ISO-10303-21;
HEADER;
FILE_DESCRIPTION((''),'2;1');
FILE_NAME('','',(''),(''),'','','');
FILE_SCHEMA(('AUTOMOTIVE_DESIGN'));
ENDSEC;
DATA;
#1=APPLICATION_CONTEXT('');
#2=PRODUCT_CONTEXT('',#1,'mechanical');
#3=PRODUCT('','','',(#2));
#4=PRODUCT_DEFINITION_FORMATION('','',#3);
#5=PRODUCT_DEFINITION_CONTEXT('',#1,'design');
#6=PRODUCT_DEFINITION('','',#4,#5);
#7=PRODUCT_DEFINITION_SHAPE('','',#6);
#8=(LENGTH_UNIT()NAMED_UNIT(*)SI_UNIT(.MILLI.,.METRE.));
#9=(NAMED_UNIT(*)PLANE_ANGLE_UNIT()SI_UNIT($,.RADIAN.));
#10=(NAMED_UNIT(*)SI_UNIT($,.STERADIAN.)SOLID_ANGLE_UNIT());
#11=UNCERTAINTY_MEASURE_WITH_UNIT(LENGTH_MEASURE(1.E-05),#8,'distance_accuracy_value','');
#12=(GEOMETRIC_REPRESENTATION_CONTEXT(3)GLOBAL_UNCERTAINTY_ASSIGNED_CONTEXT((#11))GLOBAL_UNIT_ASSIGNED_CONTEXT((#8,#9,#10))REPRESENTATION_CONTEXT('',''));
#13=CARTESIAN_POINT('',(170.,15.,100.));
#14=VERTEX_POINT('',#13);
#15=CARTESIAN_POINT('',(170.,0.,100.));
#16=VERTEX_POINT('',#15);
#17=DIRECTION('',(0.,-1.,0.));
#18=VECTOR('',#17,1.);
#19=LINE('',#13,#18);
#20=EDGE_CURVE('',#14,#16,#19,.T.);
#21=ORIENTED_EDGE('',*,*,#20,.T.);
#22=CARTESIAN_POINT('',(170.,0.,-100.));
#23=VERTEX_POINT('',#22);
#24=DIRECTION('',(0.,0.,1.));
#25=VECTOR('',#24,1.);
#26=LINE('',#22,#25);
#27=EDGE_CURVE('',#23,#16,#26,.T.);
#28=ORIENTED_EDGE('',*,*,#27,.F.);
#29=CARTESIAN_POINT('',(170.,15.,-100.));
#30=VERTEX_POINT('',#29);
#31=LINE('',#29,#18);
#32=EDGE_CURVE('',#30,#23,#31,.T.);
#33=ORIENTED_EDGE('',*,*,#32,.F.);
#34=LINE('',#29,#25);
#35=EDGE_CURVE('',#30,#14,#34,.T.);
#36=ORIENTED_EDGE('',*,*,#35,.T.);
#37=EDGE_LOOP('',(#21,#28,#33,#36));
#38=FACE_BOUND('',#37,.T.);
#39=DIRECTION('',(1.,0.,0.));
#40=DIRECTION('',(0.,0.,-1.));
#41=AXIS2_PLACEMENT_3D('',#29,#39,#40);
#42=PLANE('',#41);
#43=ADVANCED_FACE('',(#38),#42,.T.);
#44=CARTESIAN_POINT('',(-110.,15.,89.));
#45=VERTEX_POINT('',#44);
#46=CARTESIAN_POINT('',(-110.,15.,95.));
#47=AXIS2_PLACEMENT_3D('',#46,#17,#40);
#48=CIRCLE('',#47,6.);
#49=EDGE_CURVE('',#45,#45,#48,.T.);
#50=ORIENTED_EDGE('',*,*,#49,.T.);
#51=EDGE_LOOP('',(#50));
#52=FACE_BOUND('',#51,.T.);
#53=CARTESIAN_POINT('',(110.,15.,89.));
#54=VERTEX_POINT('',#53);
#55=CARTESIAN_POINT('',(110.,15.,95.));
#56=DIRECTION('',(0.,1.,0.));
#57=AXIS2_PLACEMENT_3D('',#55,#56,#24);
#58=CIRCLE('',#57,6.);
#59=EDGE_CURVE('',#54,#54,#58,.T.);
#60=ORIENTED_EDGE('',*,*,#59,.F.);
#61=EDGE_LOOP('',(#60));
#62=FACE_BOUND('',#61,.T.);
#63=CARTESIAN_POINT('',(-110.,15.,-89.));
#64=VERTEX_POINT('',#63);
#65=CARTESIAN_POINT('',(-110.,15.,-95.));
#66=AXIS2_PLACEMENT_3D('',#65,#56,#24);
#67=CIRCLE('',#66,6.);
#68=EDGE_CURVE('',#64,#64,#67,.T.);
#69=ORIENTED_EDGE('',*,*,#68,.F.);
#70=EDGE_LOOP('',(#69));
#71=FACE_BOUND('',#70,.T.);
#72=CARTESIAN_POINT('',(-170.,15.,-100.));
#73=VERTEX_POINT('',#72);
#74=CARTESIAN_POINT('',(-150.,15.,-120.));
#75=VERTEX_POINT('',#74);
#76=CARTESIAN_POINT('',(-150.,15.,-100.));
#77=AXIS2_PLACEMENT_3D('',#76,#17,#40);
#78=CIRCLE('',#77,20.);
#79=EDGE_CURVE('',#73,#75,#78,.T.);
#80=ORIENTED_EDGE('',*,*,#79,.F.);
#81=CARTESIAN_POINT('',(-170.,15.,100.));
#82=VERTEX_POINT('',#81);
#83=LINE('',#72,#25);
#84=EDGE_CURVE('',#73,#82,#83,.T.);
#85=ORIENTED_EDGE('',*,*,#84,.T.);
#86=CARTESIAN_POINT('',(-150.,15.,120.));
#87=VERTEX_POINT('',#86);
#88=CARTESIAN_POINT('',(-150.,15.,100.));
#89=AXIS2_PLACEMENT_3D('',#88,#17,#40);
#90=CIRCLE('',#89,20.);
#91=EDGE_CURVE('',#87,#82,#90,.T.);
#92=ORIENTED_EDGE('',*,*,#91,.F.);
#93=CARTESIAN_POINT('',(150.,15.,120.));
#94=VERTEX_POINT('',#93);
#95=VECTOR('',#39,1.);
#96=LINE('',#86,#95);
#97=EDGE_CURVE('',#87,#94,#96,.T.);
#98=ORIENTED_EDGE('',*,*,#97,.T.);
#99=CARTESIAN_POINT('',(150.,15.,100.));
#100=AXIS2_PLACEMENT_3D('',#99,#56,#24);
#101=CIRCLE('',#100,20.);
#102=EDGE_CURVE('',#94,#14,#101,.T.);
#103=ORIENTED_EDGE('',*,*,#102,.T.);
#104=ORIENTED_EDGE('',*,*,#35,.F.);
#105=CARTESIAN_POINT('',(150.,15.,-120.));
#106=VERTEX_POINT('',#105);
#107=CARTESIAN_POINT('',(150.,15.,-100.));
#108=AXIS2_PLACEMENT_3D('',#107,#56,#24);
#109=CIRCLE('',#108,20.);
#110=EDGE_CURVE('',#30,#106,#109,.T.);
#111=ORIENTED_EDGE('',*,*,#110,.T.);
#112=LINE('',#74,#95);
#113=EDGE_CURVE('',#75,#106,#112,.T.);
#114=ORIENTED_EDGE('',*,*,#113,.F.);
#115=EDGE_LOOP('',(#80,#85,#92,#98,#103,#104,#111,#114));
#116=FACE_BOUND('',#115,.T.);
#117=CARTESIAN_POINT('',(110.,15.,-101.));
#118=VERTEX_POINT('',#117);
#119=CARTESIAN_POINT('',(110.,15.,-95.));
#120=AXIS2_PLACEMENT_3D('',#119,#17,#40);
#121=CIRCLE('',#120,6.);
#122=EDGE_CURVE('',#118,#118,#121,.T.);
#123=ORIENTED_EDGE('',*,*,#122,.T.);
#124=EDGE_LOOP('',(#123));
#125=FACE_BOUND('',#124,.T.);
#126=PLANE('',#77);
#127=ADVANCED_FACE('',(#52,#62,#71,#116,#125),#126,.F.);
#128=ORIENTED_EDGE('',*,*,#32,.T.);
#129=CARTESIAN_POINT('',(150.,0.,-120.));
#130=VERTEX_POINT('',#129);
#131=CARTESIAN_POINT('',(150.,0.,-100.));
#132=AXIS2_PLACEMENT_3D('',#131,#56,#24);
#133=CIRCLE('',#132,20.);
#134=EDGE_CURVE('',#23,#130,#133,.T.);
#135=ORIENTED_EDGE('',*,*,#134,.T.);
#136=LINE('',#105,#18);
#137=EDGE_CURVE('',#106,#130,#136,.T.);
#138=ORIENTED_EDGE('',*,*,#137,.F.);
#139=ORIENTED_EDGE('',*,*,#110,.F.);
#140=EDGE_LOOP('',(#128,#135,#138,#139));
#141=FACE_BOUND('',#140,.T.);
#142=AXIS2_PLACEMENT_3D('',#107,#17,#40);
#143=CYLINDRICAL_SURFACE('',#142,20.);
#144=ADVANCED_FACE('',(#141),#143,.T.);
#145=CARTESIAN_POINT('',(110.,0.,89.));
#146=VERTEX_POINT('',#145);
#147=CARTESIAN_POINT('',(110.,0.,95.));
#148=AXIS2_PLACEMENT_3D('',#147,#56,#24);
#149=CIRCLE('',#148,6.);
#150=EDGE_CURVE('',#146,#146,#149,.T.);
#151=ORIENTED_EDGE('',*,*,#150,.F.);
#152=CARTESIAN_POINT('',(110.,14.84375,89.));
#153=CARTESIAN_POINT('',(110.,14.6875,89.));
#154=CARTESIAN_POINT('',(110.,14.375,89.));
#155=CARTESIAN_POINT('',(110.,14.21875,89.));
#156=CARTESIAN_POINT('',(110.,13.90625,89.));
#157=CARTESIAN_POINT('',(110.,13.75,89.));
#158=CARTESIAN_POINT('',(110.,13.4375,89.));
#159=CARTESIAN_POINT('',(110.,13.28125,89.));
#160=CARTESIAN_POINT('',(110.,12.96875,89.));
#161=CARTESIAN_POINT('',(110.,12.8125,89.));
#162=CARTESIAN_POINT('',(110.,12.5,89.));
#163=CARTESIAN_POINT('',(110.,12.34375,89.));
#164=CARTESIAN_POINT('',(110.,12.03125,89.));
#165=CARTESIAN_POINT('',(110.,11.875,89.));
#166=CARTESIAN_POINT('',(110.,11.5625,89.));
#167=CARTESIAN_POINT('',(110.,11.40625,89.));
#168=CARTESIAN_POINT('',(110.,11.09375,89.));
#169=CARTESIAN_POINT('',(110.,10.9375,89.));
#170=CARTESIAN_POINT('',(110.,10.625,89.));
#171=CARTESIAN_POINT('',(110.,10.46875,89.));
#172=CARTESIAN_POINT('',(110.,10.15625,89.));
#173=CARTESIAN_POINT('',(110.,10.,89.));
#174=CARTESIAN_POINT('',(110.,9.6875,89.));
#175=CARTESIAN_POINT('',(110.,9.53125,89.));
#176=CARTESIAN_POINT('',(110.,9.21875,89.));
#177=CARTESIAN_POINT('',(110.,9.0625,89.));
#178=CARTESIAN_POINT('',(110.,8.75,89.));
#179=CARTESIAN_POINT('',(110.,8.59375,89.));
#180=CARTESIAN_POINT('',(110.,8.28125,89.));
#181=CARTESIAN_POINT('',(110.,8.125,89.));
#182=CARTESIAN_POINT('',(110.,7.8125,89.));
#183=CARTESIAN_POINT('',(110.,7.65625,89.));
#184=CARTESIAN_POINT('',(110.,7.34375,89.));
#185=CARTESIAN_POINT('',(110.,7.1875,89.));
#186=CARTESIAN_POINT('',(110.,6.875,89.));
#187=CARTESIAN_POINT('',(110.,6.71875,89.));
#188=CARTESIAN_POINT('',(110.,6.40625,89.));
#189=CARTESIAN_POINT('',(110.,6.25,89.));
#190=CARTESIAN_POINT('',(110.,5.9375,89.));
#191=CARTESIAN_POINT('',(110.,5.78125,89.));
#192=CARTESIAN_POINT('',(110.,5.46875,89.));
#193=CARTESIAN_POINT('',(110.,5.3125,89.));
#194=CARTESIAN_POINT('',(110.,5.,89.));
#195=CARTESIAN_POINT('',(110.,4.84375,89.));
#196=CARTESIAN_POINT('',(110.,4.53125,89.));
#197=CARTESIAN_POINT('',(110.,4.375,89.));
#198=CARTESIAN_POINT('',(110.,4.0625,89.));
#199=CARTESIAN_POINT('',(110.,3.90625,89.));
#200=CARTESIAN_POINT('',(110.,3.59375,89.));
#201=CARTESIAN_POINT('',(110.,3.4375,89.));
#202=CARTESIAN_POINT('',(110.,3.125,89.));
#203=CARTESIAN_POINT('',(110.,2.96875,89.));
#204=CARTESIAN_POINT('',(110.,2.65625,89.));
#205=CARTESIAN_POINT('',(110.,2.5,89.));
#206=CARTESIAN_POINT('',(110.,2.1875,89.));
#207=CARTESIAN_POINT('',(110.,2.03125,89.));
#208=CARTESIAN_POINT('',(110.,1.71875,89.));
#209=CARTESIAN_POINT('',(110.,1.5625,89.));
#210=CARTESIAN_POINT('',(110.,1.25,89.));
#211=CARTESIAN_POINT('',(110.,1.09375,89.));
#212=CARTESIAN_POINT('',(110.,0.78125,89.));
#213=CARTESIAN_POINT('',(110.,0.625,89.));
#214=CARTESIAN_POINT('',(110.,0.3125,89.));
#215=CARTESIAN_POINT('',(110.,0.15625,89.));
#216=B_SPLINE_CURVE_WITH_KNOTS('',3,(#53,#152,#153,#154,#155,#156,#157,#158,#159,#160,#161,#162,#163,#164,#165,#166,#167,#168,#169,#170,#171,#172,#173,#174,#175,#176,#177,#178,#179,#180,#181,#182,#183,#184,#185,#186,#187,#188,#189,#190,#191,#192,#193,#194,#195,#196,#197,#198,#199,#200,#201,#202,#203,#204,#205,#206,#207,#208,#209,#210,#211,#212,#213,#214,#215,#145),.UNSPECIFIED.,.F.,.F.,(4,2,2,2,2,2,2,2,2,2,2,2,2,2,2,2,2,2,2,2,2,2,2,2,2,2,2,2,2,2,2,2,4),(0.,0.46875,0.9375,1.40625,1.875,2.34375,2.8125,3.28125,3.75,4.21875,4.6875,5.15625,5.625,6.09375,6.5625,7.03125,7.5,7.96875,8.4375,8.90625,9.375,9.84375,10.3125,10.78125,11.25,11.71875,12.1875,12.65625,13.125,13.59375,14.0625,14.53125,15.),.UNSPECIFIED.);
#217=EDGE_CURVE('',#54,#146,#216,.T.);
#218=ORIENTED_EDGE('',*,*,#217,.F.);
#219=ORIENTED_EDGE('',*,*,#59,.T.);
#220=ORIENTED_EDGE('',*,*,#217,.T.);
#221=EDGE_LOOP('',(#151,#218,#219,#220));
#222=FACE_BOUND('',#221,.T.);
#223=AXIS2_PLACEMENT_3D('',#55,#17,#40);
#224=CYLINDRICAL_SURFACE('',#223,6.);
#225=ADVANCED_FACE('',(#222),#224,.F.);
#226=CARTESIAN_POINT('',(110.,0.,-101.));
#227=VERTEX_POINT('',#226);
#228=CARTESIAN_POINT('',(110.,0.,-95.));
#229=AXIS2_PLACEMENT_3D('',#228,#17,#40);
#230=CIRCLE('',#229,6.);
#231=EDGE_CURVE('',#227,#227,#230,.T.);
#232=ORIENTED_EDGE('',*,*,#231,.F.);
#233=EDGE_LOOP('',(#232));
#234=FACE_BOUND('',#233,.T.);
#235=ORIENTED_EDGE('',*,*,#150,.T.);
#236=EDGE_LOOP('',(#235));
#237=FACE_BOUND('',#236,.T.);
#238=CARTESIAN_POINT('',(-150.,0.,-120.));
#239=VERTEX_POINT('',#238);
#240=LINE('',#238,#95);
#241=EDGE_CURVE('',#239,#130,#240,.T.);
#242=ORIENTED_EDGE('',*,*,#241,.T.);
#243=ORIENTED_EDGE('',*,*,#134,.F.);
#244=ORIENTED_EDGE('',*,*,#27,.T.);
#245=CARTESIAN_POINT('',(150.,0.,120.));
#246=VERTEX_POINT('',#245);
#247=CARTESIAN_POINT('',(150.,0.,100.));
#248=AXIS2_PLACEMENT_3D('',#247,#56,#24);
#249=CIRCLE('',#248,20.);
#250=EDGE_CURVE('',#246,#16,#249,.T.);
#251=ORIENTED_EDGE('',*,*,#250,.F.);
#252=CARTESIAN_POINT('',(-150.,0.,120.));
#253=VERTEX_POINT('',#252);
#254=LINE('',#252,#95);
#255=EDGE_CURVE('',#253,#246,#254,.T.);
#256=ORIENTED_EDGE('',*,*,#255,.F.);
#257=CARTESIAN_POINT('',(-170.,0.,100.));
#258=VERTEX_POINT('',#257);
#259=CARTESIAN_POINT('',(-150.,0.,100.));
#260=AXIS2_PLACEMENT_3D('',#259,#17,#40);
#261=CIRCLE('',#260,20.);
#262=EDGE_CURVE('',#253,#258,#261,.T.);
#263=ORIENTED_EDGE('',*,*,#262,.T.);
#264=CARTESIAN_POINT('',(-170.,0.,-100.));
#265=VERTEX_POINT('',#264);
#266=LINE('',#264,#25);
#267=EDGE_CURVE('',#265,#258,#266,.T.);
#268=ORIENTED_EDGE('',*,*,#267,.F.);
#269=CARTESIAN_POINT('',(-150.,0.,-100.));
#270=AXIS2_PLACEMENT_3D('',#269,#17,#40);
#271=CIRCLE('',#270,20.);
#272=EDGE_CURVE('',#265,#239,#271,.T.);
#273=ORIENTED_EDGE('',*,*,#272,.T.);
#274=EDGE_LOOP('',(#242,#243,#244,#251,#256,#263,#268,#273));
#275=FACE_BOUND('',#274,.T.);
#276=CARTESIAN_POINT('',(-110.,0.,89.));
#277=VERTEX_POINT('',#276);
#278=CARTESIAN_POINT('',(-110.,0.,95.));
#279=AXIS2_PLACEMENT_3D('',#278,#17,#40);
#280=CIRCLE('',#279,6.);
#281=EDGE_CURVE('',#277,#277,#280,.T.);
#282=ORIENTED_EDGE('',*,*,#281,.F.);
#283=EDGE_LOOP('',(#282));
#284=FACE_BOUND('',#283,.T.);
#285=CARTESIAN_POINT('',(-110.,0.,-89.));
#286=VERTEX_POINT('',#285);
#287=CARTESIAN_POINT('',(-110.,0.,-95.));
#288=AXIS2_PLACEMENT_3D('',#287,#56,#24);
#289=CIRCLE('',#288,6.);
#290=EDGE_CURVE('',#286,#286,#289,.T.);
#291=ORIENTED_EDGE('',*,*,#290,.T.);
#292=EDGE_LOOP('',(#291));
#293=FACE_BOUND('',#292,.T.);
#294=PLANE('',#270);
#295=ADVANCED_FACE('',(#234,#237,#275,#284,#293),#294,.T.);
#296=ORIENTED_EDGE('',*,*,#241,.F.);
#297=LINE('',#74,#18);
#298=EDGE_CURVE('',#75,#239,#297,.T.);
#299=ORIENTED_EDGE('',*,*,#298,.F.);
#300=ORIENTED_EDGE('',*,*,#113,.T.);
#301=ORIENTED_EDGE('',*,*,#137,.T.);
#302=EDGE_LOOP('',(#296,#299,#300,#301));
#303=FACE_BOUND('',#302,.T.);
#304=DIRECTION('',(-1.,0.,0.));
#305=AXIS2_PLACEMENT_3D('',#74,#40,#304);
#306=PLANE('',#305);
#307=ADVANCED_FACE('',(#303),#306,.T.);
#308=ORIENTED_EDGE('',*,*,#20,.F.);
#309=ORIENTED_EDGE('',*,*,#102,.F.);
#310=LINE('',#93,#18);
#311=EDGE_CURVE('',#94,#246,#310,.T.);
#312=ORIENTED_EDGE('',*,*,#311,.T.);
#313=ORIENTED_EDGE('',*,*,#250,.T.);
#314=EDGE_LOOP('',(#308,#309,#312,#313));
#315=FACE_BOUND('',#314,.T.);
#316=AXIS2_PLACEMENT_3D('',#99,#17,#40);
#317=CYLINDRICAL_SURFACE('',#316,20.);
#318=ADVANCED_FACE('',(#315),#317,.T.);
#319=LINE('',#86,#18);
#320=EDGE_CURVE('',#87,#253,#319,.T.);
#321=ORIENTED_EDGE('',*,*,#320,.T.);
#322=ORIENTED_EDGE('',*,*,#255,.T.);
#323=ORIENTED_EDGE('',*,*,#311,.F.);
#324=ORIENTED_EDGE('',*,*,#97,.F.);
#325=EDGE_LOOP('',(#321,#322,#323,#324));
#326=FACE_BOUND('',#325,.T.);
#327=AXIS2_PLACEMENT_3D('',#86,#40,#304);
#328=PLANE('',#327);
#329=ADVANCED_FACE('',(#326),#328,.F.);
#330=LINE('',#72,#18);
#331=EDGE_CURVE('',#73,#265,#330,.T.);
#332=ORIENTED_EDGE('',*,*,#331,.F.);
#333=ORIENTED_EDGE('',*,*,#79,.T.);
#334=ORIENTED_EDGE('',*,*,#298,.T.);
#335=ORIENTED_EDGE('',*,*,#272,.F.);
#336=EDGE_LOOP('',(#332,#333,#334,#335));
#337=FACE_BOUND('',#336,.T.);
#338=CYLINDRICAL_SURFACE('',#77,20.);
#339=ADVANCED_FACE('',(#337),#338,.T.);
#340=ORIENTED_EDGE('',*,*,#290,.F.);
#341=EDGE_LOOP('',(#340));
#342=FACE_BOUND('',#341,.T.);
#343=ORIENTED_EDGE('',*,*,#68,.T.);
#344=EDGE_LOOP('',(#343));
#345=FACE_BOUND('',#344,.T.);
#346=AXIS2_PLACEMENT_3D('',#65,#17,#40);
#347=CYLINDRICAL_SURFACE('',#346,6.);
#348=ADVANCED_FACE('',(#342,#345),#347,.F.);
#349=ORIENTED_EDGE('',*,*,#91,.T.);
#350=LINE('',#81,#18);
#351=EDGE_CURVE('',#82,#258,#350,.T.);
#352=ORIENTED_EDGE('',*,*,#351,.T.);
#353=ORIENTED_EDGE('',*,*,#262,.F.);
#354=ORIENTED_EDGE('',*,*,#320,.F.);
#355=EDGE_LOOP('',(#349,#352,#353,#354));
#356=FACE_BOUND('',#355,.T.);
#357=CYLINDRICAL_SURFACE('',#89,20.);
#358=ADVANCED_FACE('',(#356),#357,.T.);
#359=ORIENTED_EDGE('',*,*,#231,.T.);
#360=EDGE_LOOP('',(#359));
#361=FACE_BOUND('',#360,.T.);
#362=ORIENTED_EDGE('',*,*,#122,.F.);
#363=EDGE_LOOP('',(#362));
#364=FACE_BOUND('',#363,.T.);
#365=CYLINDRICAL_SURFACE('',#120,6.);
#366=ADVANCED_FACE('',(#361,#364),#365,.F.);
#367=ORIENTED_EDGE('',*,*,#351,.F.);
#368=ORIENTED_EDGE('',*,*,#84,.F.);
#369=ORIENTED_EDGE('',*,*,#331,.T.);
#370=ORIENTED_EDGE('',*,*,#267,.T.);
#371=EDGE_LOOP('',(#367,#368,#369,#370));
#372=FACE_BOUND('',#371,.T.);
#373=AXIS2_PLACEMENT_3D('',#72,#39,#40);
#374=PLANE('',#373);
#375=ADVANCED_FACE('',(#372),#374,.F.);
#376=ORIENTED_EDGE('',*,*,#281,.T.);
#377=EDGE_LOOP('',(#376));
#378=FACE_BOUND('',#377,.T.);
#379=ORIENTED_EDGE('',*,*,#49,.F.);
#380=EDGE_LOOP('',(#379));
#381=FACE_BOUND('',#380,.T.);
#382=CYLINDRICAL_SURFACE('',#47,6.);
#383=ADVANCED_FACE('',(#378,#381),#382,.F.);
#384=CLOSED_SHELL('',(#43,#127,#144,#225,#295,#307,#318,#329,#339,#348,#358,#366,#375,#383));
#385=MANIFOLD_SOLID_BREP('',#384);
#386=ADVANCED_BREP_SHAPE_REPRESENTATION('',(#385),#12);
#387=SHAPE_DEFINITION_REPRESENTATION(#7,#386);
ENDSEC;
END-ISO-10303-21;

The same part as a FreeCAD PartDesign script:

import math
import FreeCAD as App
import Part
import Sketcher
from FreeCAD import Vector

doc = App.newDocument("Part")
body = doc.addObject("PartDesign::Body", "Body")

sketch1 = body.newObject("Sketcher::SketchObject", "Sketch")
sketch1.AttachmentSupport = (doc.getObject("XZ_Plane"), [""])
sketch1.MapMode = "FlatFace"
sketch1.addGeometry(Part.LineSegment(Vector(150, -120, 0), Vector(-150, -120, 0)), False)
sketch1.addGeometry(Part.ArcOfCircle(Part.Circle(Vector(-150, -100, 0), Vector(0, 0, 1), 20), math.radians(180), math.radians(270)), False)
sketch1.addGeometry(Part.LineSegment(Vector(-170, -100, 0), Vector(-170, 100, 0)), False)
sketch1.addGeometry(Part.ArcOfCircle(Part.Circle(Vector(-150, 100, 0), Vector(0, 0, 1), 20), math.radians(90), math.radians(180)), False)
sketch1.addGeometry(Part.LineSegment(Vector(-150, 120, 0), Vector(150, 120, 0)), False)
sketch1.addGeometry(Part.ArcOfCircle(Part.Circle(Vector(150, 100, 0), Vector(0, 0, 1), 20), math.radians(0), math.radians(90)), False)
sketch1.addGeometry(Part.LineSegment(Vector(170, 100, 0), Vector(170, -100, 0)), False)
sketch1.addGeometry(Part.ArcOfCircle(Part.Circle(Vector(150, -100, 0), Vector(0, 0, 1), 20), math.radians(-90), math.radians(0)), False)
sketch1.addConstraint(Sketcher.Constraint("Tangent", 0, 2, 1, 2))
sketch1.addConstraint(Sketcher.Constraint("Tangent", 1, 1, 2, 1))
sketch1.addConstraint(Sketcher.Constraint("Tangent", 2, 2, 3, 2))
sketch1.addConstraint(Sketcher.Constraint("Tangent", 3, 1, 4, 1))
sketch1.addConstraint(Sketcher.Constraint("Tangent", 4, 2, 5, 2))
sketch1.addConstraint(Sketcher.Constraint("Tangent", 5, 1, 6, 1))
sketch1.addConstraint(Sketcher.Constraint("Tangent", 6, 2, 7, 2))
sketch1.addConstraint(Sketcher.Constraint("Tangent", 7, 1, 0, 1))
sketch1.addConstraint(Sketcher.Constraint("Horizontal", 0))
sketch1.addConstraint(Sketcher.Constraint("Vertical", 2))
sketch1.addConstraint(Sketcher.Constraint("Horizontal", 4))
sketch1.addConstraint(Sketcher.Constraint("Vertical", 6))
sketch1.addConstraint(Sketcher.Constraint("Equal", 1, 3))
sketch1.addConstraint(Sketcher.Constraint("Equal", 3, 5))
sketch1.addConstraint(Sketcher.Constraint("Equal", 5, 7))
sketch1.addConstraint(Sketcher.Constraint("Symmetric", 1, 3, 5, 3, -1, 1))
sketch1.addConstraint(Sketcher.Constraint("Radius", 1, 20.0))
sketch1.addConstraint(Sketcher.Constraint("DistanceX", 0, 2, 0, 1, 300.0))
sketch1.addConstraint(Sketcher.Constraint("DistanceY", 2, 1, 2, 2, 200.0))
pad1 = body.newObject("PartDesign::Pad", "Pad")
pad1.Profile = sketch1
pad1.Length = 15
pad1.Reversed = True

sketch2 = body.newObject("Sketcher::SketchObject", "Sketch001")
sketch2.AttachmentSupport = (doc.getObject("XZ_Plane"), [""])
sketch2.MapMode = "FlatFace"
sketch2.addGeometry(Part.Circle(Vector(-110, 95, 0), Vector(0, 0, 1), 6), False)
sketch2.addConstraint(Sketcher.Constraint("Diameter", 0, 12.0))
sketch2.addConstraint(Sketcher.Constraint("DistanceX", 0, 3, -1, 1, 110.0))
sketch2.addConstraint(Sketcher.Constraint("DistanceY", -1, 1, 0, 3, 95.0))
pocket1 = body.newObject("PartDesign::Pocket", "Pocket")
pocket1.Profile = sketch2
pocket1.Length = 15

sketch3 = body.newObject("Sketcher::SketchObject", "Sketch002")
sketch3.AttachmentSupport = (doc.getObject("XZ_Plane"), [""])
sketch3.MapMode = "FlatFace"
sketch3.addGeometry(Part.Circle(Vector(110, 95, 0), Vector(0, 0, 1), 6), False)
sketch3.addConstraint(Sketcher.Constraint("Diameter", 0, 12.0))
sketch3.addConstraint(Sketcher.Constraint("DistanceX", -1, 1, 0, 3, 110.0))
sketch3.addConstraint(Sketcher.Constraint("DistanceY", -1, 1, 0, 3, 95.0))
pocket2 = body.newObject("PartDesign::Pocket", "Pocket001")
pocket2.Profile = sketch3
pocket2.Length = 15

sketch4 = body.newObject("Sketcher::SketchObject", "Sketch003")
sketch4.AttachmentSupport = (doc.getObject("XZ_Plane"), [""])
sketch4.MapMode = "FlatFace"
sketch4.addGeometry(Part.Circle(Vector(-110, -95, 0), Vector(0, 0, 1), 6), False)
sketch4.addConstraint(Sketcher.Constraint("Diameter", 0, 12.0))
sketch4.addConstraint(Sketcher.Constraint("DistanceX", 0, 3, -1, 1, 110.0))
sketch4.addConstraint(Sketcher.Constraint("DistanceY", 0, 3, -1, 1, 95.0))
pocket3 = body.newObject("PartDesign::Pocket", "Pocket002")
pocket3.Profile = sketch4
pocket3.Length = 15

sketch5 = body.newObject("Sketcher::SketchObject", "Sketch004")
sketch5.AttachmentSupport = (doc.getObject("XZ_Plane"), [""])
sketch5.MapMode = "FlatFace"
sketch5.addGeometry(Part.Circle(Vector(110, -95, 0), Vector(0, 0, 1), 6), False)
sketch5.addConstraint(Sketcher.Constraint("Diameter", 0, 12.0))
sketch5.addConstraint(Sketcher.Constraint("DistanceX", -1, 1, 0, 3, 110.0))
sketch5.addConstraint(Sketcher.Constraint("DistanceY", 0, 3, -1, 1, 95.0))
pocket4 = body.newObject("PartDesign::Pocket", "Pocket003")
pocket4.Profile = sketch5
pocket4.Length = 15

doc.recompute()
